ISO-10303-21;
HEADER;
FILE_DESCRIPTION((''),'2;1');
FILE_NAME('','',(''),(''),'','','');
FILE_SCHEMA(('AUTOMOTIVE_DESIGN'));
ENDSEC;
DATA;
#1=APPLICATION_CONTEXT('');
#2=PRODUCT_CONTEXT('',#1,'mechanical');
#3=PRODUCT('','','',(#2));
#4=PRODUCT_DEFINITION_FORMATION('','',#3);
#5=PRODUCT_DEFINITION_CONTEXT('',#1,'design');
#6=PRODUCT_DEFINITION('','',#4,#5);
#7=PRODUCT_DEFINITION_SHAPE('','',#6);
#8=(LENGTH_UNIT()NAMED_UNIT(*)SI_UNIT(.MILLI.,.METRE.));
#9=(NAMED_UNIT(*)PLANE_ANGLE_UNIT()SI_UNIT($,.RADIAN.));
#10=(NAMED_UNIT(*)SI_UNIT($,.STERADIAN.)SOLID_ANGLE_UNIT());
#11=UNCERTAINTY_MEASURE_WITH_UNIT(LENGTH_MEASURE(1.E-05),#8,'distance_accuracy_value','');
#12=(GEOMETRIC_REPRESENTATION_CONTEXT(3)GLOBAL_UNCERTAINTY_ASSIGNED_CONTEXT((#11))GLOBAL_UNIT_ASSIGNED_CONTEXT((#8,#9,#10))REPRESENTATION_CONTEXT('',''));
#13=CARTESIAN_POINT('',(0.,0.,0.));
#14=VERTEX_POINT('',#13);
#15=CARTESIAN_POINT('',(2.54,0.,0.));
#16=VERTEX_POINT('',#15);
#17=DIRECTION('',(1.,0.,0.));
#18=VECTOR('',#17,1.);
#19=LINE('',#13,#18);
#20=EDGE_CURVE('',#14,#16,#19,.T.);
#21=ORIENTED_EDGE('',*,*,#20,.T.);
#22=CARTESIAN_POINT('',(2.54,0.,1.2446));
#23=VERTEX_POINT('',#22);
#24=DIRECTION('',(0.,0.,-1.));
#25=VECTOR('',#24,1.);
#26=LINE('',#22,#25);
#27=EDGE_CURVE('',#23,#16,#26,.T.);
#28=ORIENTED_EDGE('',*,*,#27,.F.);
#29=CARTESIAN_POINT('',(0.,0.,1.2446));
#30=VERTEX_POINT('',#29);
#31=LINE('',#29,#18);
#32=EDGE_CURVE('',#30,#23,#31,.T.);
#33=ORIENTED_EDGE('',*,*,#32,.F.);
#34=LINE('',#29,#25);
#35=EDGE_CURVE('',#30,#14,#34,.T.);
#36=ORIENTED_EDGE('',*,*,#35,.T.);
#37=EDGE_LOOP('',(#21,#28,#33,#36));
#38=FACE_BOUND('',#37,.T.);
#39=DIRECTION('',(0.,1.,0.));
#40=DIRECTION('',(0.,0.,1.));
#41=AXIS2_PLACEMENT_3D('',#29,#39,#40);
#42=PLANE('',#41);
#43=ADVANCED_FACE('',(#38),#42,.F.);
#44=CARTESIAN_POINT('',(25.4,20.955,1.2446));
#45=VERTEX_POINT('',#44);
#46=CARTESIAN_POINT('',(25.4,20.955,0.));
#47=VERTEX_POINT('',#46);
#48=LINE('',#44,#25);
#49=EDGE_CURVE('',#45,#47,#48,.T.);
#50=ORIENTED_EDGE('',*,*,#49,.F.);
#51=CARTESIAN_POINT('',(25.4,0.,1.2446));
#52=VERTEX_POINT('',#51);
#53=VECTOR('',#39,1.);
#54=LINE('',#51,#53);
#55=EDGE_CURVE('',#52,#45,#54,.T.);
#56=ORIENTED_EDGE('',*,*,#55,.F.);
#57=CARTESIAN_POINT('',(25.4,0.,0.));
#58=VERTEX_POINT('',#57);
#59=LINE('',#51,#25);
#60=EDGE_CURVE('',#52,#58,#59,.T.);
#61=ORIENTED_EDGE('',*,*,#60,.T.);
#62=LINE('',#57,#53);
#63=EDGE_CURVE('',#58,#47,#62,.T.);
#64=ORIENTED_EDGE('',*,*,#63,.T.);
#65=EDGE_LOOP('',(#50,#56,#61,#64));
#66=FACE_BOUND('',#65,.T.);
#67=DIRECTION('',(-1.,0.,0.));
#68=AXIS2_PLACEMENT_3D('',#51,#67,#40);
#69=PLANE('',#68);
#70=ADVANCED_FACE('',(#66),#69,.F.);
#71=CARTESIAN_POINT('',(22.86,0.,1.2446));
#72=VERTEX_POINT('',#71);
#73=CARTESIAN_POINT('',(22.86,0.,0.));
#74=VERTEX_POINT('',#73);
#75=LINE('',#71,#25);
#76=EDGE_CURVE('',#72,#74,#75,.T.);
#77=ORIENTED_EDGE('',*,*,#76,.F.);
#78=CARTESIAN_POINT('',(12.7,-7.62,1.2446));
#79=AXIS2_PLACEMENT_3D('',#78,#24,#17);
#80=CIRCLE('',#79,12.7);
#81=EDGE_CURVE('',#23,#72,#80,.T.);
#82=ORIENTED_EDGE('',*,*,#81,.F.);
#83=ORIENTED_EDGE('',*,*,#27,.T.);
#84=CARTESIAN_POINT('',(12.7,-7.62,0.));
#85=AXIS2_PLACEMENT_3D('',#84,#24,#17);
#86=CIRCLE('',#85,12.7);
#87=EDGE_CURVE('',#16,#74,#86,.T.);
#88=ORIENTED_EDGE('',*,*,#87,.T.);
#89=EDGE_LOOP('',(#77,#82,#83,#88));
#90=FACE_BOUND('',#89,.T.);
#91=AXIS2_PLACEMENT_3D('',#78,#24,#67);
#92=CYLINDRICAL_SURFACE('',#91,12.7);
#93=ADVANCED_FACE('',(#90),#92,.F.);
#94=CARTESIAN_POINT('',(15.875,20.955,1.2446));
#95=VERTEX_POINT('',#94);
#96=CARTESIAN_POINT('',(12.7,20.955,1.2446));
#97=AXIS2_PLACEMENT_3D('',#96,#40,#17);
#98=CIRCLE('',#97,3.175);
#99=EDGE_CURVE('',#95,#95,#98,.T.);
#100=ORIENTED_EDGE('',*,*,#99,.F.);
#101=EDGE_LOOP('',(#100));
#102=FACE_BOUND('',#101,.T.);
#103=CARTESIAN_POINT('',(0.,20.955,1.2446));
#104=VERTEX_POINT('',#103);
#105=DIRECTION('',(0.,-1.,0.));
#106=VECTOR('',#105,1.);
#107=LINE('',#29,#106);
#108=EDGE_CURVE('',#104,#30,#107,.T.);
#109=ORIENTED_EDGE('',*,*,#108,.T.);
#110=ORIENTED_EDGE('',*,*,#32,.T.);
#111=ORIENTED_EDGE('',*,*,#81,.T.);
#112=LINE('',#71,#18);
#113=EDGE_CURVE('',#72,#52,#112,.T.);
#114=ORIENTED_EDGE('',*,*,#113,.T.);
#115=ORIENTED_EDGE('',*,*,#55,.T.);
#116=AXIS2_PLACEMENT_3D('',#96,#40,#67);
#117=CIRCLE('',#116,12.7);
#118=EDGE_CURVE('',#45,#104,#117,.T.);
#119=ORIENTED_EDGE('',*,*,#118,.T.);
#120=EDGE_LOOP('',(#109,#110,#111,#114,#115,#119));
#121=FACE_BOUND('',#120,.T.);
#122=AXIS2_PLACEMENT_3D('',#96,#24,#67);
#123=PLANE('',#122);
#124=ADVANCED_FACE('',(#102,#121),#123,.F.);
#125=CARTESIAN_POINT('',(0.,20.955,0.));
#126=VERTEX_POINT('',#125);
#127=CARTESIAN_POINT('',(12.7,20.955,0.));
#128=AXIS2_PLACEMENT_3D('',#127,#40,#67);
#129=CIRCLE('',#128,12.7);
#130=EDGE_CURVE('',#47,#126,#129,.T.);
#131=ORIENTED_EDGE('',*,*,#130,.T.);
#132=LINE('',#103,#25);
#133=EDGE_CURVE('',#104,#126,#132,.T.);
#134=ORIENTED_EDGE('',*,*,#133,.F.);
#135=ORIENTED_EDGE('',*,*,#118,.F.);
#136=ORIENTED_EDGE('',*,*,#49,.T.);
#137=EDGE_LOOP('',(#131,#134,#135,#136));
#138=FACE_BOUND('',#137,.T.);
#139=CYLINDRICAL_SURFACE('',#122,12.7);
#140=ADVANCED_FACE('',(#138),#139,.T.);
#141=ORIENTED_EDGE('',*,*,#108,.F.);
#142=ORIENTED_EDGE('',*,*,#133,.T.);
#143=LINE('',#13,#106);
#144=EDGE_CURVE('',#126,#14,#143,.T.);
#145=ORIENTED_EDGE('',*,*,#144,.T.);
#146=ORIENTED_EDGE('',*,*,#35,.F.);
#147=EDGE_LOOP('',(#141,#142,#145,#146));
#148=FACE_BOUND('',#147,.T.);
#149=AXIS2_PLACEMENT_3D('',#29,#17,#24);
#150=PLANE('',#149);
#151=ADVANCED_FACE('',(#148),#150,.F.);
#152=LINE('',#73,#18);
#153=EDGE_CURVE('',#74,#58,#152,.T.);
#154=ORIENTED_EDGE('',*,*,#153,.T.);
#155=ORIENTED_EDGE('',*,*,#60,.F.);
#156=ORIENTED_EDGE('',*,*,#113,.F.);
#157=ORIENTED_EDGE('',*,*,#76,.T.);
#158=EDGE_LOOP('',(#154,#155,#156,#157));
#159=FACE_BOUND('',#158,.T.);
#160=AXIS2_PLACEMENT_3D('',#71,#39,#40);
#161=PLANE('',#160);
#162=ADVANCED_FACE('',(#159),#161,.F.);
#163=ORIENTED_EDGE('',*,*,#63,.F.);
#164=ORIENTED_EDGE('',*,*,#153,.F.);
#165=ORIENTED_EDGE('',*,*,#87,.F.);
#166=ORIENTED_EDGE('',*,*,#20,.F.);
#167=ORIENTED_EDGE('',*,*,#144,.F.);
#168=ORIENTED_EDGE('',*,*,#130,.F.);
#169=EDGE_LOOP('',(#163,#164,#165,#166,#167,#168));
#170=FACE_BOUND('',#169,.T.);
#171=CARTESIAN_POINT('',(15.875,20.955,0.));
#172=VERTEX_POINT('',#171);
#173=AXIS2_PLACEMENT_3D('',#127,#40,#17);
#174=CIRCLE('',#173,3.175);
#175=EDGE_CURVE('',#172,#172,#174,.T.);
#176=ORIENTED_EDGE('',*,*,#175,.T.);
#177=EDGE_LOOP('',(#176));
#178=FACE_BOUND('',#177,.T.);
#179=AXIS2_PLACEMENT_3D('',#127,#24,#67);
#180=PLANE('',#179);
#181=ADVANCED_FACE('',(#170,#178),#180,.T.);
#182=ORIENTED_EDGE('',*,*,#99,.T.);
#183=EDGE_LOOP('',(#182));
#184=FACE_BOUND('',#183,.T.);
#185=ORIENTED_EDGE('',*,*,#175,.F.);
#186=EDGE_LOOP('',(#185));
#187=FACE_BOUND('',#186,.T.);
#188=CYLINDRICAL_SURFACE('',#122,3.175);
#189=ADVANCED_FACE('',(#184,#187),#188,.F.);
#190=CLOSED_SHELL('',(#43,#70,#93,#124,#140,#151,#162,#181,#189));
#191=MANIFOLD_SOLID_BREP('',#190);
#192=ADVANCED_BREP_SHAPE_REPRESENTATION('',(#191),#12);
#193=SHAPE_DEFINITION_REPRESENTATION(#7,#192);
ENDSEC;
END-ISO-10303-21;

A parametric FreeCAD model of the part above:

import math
import FreeCAD as App
import Part
import Sketcher
from FreeCAD import Vector
Q = App.Units.Quantity

doc = App.newDocument("Part")
params = doc.addObject("Spreadsheet::Sheet", "Params")
for row, (alias, value) in enumerate([
    ("sketch1_radius", "0.5 in"),
    ("sketch1_diameter", "0.25 in"),
    ("sketch1_width", "0.1 in"),
    ("sketch1_height", "0.825 in"),
    ("pad1_length", "0.049 in"),
], start=1):
    params.set(f"A{row}", alias)
    params.set(f"B{row}", "=" + value)
    params.setAlias(f"B{row}", alias)

body = doc.addObject("PartDesign::Body", "Body")

# Sketch on XY plane
sketch1 = body.newObject("Sketcher::SketchObject", "Sketch")
sketch1.AttachmentSupport = (doc.getObject("XY_Plane"), [""])
sketch1.MapMode = "FlatFace"
sketch1.addGeometry(Part.LineSegment(Vector(0, 0, 0), Vector(2.54, 0, 0)), False)
sketch1.addGeometry(Part.ArcOfCircle(Part.Circle(Vector(12.7, -7.62, 0), Vector(0, 0, 1), 12.7), math.radians(36.869898), math.radians(143.130102)), False)
sketch1.addGeometry(Part.LineSegment(Vector(22.86, 0, 0), Vector(25.4, 0, 0)), False)
sketch1.addGeometry(Part.LineSegment(Vector(25.4, 0, 0), Vector(25.4, 20.955, 0)), False)
sketch1.addGeometry(Part.ArcOfCircle(Part.Circle(Vector(12.7, 20.955, 0), Vector(0, 0, 1), 12.7), math.radians(0), math.radians(180)), False)
sketch1.addGeometry(Part.LineSegment(Vector(0, 20.955, 0), Vector(0, 0, 0)), False)
sketch1.addGeometry(Part.Circle(Vector(12.7, 20.955, 0), Vector(0, 0, 1), 3.175), False)
sketch1.addConstraint(Sketcher.Constraint("Coincident", 0, 2, 1, 2))
sketch1.addConstraint(Sketcher.Constraint("Coincident", 1, 1, 2, 1))
sketch1.addConstraint(Sketcher.Constraint("Coincident", 2, 2, 3, 1))
sketch1.addConstraint(Sketcher.Constraint("Tangent", 3, 2, 4, 1))
sketch1.addConstraint(Sketcher.Constraint("Tangent", 4, 2, 5, 1))
sketch1.addConstraint(Sketcher.Constraint("Coincident", 5, 2, 0, 1))
sketch1.addConstraint(Sketcher.Constraint("Horizontal", 0))
sketch1.addConstraint(Sketcher.Constraint("Horizontal", 2))
sketch1.addConstraint(Sketcher.Constraint("Vertical", 3))
sketch1.addConstraint(Sketcher.Constraint("Vertical", 5))
sketch1.addConstraint(Sketcher.Constraint("Coincident", 5, 2, -1, 1))
sketch1.addConstraint(Sketcher.Constraint("Coincident", 6, 3, 4, 3))
sketch1.addConstraint(Sketcher.Constraint("Equal", 1, 4))
sketch1.addConstraint(Sketcher.Constraint("PointOnObject", 1, 1, -1))
sketch1.addConstraint(Sketcher.Constraint("Vertical", 1, 3, 4, 3))
sketch1.addConstraint(Sketcher.Constraint("Radius", 1, Q("0.5 in")))
sketch1.addConstraint(Sketcher.Constraint("Diameter", 6, Q("0.25 in")))
sketch1.addConstraint(Sketcher.Constraint("DistanceX", 0, 1, 0, 2, Q("0.1 in")))
sketch1.addConstraint(Sketcher.Constraint("DistanceY", 3, 1, 3, 2, Q("0.825 in")))
sketch1.setExpression("Constraints[15]", "Params.sketch1_radius")
sketch1.setExpression("Constraints[16]", "Params.sketch1_diameter")
sketch1.setExpression("Constraints[17]", "Params.sketch1_width")
sketch1.setExpression("Constraints[18]", "Params.sketch1_height")
pad1 = body.newObject("PartDesign::Pad", "Pad")
pad1.Profile = sketch1
pad1.setExpression("Length", "Params.pad1_length")

doc.recompute()
